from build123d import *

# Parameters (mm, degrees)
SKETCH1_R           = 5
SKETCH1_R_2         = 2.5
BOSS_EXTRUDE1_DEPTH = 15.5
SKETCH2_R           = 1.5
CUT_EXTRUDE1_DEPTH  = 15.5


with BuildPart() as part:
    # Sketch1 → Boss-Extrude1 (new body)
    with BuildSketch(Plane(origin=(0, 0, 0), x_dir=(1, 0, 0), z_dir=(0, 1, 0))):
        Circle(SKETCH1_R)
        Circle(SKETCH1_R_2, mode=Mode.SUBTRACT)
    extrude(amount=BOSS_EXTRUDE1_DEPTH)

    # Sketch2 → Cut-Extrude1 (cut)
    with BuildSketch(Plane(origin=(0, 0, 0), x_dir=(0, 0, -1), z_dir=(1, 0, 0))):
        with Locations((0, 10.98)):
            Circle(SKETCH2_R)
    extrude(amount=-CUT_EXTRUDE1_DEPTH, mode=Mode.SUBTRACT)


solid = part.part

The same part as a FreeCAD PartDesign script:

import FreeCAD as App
import Part
import Sketcher

doc = App.newDocument("Part")
body = doc.addObject("PartDesign::Body", "Body")

# Sketch on XZ plane
sketch1 = body.newObject("Sketcher::SketchObject", "Sketch")
sketch1.AttachmentSupport = (doc.getObject("XZ_Plane"), [""])
sketch1.MapMode = "FlatFace"
sketch1.addGeometry([
    Part.Circle(App.Vector(0, 0, 0), App.Vector(0, 0, 1), 5),
    Part.Circle(App.Vector(0, 0, 0), App.Vector(0, 0, 1), 2.5),
], False)
sketch1.addConstraint([
    Sketcher.Constraint("Coincident", 0, 3, -1, 1),
    Sketcher.Constraint("Coincident", 1, 3, -1, 1),
    Sketcher.Constraint("Diameter", 0, 10.0),
    Sketcher.Constraint("Diameter", 1, 5.0),
])
pad1 = body.newObject("PartDesign::Pad", "Pad")
pad1.Profile = sketch1
pad1.Length = 15.5
pad1.Reversed = True

# Sketch on YZ plane
sketch2 = body.newObject("Sketcher::SketchObject", "Sketch001")
sketch2.AttachmentSupport = (doc.getObject("YZ_Plane"), [""])
sketch2.MapMode = "FlatFace"
sketch2.addGeometry(Part.Circle(App.Vector(10.98, 0, 0), App.Vector(0, 0, 1), 1.5), False)
sketch2.addConstraint([
    Sketcher.Constraint("PointOnObject", 0, 3, -1),
    Sketcher.Constraint("Diameter", 0, 3.0),
    Sketcher.Constraint("DistanceX", -1, 1, 0, 3, 10.98),
])
pocket1 = body.newObject("PartDesign::Pocket", "Pocket")
pocket1.Profile = sketch2
pocket1.Length = 15.5

doc.recompute()
